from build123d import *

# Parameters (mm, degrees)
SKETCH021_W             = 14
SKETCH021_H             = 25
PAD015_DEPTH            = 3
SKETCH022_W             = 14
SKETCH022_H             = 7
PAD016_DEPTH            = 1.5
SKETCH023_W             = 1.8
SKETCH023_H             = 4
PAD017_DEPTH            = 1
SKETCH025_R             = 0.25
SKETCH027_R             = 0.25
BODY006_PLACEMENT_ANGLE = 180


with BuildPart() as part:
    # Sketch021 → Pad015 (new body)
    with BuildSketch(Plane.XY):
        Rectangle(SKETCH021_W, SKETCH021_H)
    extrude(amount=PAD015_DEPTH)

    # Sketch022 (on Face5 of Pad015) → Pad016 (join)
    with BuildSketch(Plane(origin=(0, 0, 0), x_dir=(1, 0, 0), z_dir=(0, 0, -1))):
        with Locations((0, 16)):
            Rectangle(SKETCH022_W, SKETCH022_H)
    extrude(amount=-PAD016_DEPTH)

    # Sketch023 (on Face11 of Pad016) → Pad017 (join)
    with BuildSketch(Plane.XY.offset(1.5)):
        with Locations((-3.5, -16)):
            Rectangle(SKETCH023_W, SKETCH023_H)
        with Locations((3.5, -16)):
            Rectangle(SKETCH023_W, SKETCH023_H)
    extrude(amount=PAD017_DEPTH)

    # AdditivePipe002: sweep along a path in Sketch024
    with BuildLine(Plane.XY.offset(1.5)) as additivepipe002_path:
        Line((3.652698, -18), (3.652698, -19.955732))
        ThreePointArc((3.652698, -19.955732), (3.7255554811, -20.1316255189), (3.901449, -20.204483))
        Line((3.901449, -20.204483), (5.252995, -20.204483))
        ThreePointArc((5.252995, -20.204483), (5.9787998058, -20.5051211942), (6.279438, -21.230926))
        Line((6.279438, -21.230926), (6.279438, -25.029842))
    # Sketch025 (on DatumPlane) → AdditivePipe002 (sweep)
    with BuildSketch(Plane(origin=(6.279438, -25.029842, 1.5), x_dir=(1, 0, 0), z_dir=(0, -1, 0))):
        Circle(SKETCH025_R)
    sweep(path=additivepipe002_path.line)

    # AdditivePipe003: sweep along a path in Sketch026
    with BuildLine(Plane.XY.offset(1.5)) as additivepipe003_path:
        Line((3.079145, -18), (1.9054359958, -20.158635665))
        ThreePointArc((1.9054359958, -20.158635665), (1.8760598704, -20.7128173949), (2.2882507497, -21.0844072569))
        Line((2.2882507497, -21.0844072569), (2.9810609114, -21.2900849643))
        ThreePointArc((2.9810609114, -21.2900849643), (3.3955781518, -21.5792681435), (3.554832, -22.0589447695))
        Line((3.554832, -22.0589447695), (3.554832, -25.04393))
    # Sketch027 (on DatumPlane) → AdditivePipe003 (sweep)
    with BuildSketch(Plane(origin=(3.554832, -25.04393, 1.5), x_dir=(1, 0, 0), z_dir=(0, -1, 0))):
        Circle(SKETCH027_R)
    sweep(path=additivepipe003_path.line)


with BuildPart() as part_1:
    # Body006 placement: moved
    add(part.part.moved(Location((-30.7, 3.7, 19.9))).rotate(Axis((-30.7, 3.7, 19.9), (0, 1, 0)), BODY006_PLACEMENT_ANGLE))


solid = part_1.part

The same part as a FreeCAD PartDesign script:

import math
import FreeCAD as App
import Part
import Sketcher


def add_polygon(sketch, points):
    """Adds a closed chain of lines whose ends are joined by coincident constraints."""
    first, n = sketch.GeometryCount, len(points)
    for a, b in zip(points, points[1:] + points[:1]):
        sketch.addGeometry(Part.LineSegment(App.Vector(*a, 0), App.Vector(*b, 0)), False)
    for i in range(n):
        sketch.addConstraint(Sketcher.Constraint("Coincident", first + i, 2, first + (i + 1) % n, 1))

doc = App.newDocument("Part")
params = doc.addObject("Spreadsheet::Sheet", "Params")
for row, (alias, value) in enumerate([
    ("sketch1_width", "14 mm"),
    ("sketch1_height", "25 mm"),
    ("pad1_length", "3 mm"),
    ("sketch2_width", "14 mm"),
    ("sketch2_height", "7 mm"),
    ("pad2_length", "1.5 mm"),
    ("sketch3_height", "4 mm"),
    ("sketch3_width", "1.8 mm"),
    ("pad3_length", "1 mm"),
    ("sketch4_diameter", "0.5 mm"),
    ("sketch6_diameter", "0.5 mm"),
], start=1):
    params.set(f"A{row}", alias)
    params.set(f"B{row}", "=" + value)
    params.setAlias(f"B{row}", alias)

body = doc.addObject("PartDesign::Body", "Body")

# Sketch on XY plane
sketch1 = body.newObject("Sketcher::SketchObject", "Sketch")
sketch1.AttachmentSupport = (doc.getObject("XY_Plane"), [""])
sketch1.MapMode = "FlatFace"
add_polygon(sketch1, [(-7, 12.5), (-7, -12.5), (7, -12.5), (7, 12.5)])  # lines 0-3
sketch1.addConstraint([
    Sketcher.Constraint("Vertical", 0),
    Sketcher.Constraint("Horizontal", 1),
    Sketcher.Constraint("Vertical", 2),
    Sketcher.Constraint("Horizontal", 3),
    Sketcher.Constraint("Symmetric", 0, 2, 2, 2, -1, 1),
    Sketcher.Constraint("DistanceX", 1, 1, 1, 2, 14.0),
    Sketcher.Constraint("DistanceY", 0, 2, 0, 1, 25.0),
])
sketch1.setExpression("Constraints[9]", "Params.sketch1_width")
sketch1.setExpression("Constraints[10]", "Params.sketch1_height")
pad1 = body.newObject("PartDesign::Pad", "Pad")
pad1.Profile = sketch1
pad1.setExpression("Length", "Params.pad1_length")

# Sketch on XY plane
sketch2 = body.newObject("Sketcher::SketchObject", "Sketch001")
sketch2.AttachmentSupport = (doc.getObject("XY_Plane"), [""])
sketch2.MapMode = "FlatFace"
add_polygon(sketch2, [(-7, -19.5), (-7, -12.5), (7, -12.5), (7, -19.5)])  # lines 0-3
sketch2.addConstraint([
    Sketcher.Constraint("Vertical", 0),
    Sketcher.Constraint("Horizontal", 1),
    Sketcher.Constraint("Vertical", 2),
    Sketcher.Constraint("Horizontal", 3),
    Sketcher.Constraint("DistanceX", 1, 1, 1, 2, 14.0),
    Sketcher.Constraint("DistanceY", 0, 1, 0, 2, 7.0),
    Sketcher.Constraint("DistanceX", 0, 2, -1, 1, 7.0),
    Sketcher.Constraint("DistanceY", 0, 2, -1, 1, 12.5),
])
sketch2.setExpression("Constraints[8]", "Params.sketch2_width")
sketch2.setExpression("Constraints[9]", "Params.sketch2_height")
pad2 = body.newObject("PartDesign::Pad", "Pad001")
pad2.Profile = sketch2
pad2.setExpression("Length", "Params.pad2_length")

# Sketch on XY plane
sketch3 = body.newObject("Sketcher::SketchObject", "Sketch002")
sketch3.AttachmentSupport = (doc.getObject("XY_Plane"), [""])
sketch3.MapMode = "FlatFace"
sketch3.AttachmentOffset = App.Placement(App.Vector(0, 0, 1.5), App.Rotation())
add_polygon(sketch3, [(-4.4, -14), (-4.4, -18), (-2.6, -18), (-2.6, -14)])  # lines 0-3
add_polygon(sketch3, [(2.6, -14), (2.6, -18), (4.4, -18), (4.4, -14)])  # lines 4-7
sketch3.addConstraint([
    Sketcher.Constraint("Vertical", 0),
    Sketcher.Constraint("Horizontal", 1),
    Sketcher.Constraint("Vertical", 2),
    Sketcher.Constraint("Horizontal", 3),
    Sketcher.Constraint("Vertical", 4),
    Sketcher.Constraint("Horizontal", 5),
    Sketcher.Constraint("Vertical", 6),
    Sketcher.Constraint("Horizontal", 7),
    Sketcher.Constraint("Symmetric", 1, 2, 4, 2, -2),
    Sketcher.Constraint("Symmetric", 3, 2, 6, 2, -2),
    Sketcher.Constraint("DistanceY", 0, 2, 0, 1, 4.0),
    Sketcher.Constraint("DistanceX", 1, 1, 1, 2, 1.8),
    Sketcher.Constraint("DistanceY", 0, 2, -1, 1, 18.0),
    Sketcher.Constraint("DistanceX", 0, 2, 4, 2, 7.0),
])
sketch3.setExpression("Constraints[18]", "Params.sketch3_height")
sketch3.setExpression("Constraints[19]", "Params.sketch3_width")
pad3 = body.newObject("PartDesign::Pad", "Pad002")
pad3.Profile = sketch3
pad3.setExpression("Length", "Params.pad3_length")

# Sketch on XZ plane
sketch4 = body.newObject("Sketcher::SketchObject", "Sketch003")
sketch4.AttachmentSupport = (doc.getObject("XZ_Plane"), [""])
sketch4.MapMode = "FlatFace"
sketch4.AttachmentOffset = App.Placement(App.Vector(0, 0, 25.029842), App.Rotation())
sketch4.addGeometry(Part.Circle(App.Vector(6.279438, 1.5, 0), App.Vector(0, 0, 1), 0.25), False)
sketch4.addConstraint([
    Sketcher.Constraint("Diameter", 0, 0.5),
    Sketcher.Constraint("DistanceY", -1, 1, 0, 3, 1.5),
    Sketcher.Constraint("DistanceX", -1, 1, 0, 3, 6.279438),
])
sketch4.setExpression("Constraints[0]", "Params.sketch4_diameter")

# Sketch on XY plane
sketch5 = body.newObject("Sketcher::SketchObject", "Sketch004")
sketch5.AttachmentSupport = (doc.getObject("XY_Plane"), [""])
sketch5.MapMode = "FlatFace"
sketch5.AttachmentOffset = App.Placement(App.Vector(0, 0, 1.5), App.Rotation())
sketch5.addGeometry([
    Part.LineSegment(App.Vector(3.652698, -18, 0), App.Vector(3.652698, -19.955732, 0)),  # 0
    Part.ArcOfCircle(Part.Circle(App.Vector(3.901449, -19.955732, 0), App.Vector(0, 0, 1), 0.248751), math.radians(180), math.radians(270)),  # 1
    Part.LineSegment(App.Vector(3.901449, -20.204483, 0), App.Vector(5.252995, -20.204483, 0)),  # 2
    Part.ArcOfCircle(Part.Circle(App.Vector(5.252995, -21.230926, 0), App.Vector(0, 0, 1), 1.026443), math.radians(0), math.radians(90)),  # 3
    Part.LineSegment(App.Vector(6.279438, -21.230926, 0), App.Vector(6.279438, -25.029842, 0)),  # 4
], False)
sketch5.addConstraint([
    Sketcher.Constraint("Tangent", 0, 2, 1, 1),
    Sketcher.Constraint("Tangent", 1, 2, 2, 1),
    Sketcher.Constraint("Tangent", 2, 2, 3, 2),
    Sketcher.Constraint("Tangent", 3, 1, 4, 1),
    Sketcher.Constraint("Vertical", 0),
    Sketcher.Constraint("Horizontal", 2),
    Sketcher.Constraint("Vertical", 4),
    Sketcher.Constraint("DistanceY", 0, 1, -1, 1, 18.0),
    Sketcher.Constraint("Radius", 1, 0.248751),
    Sketcher.Constraint("Radius", 3, 1.026443),
    Sketcher.Constraint("DistanceX", -1, 1, 0, 1, 3.652698),
    Sketcher.Constraint("DistanceX", 2, 1, 2, 2, 1.351546),
    Sketcher.Constraint("DistanceY", 0, 2, 0, 1, 1.955732),
    Sketcher.Constraint("DistanceY", 4, 2, 4, 1, 3.798916),
])
doc.recompute()

additivepipe = body.newObject("PartDesign::AdditivePipe", "AdditivePipe")
additivepipe.Profile = sketch4
additivepipe.Spine = (sketch5, ["Edge1", "Edge2", "Edge3", "Edge4", "Edge5"])

# Sketch on XZ plane
sketch6 = body.newObject("Sketcher::SketchObject", "Sketch005")
sketch6.AttachmentSupport = (doc.getObject("XZ_Plane"), [""])
sketch6.MapMode = "FlatFace"
sketch6.AttachmentOffset = App.Placement(App.Vector(0, 0, 25.04393), App.Rotation())
sketch6.addGeometry(Part.Circle(App.Vector(3.554832, 1.5, 0), App.Vector(0, 0, 1), 0.25), False)
sketch6.addConstraint([
    Sketcher.Constraint("Diameter", 0, 0.5),
    Sketcher.Constraint("DistanceY", -1, 1, 0, 3, 1.5),
    Sketcher.Constraint("DistanceX", -1, 1, 0, 3, 3.554832),
])
sketch6.setExpression("Constraints[0]", "Params.sketch6_diameter")

# Sketch on XY plane
sketch7 = body.newObject("Sketcher::SketchObject", "Sketch006")
sketch7.AttachmentSupport = (doc.getObject("XY_Plane"), [""])
sketch7.MapMode = "FlatFace"
sketch7.AttachmentOffset = App.Placement(App.Vector(0, 0, 1.5), App.Rotation())
sketch7.addGeometry([
    Part.LineSegment(App.Vector(3.079145, -18, 0), App.Vector(1.905436, -20.158636, 0)),  # 0
    Part.ArcOfCircle(Part.Circle(App.Vector(2.471685, -20.466521, 0), App.Vector(0, 0, 1), 0.64454), math.radians(151.46587), math.radians(253.465186)),  # 1
    Part.LineSegment(App.Vector(2.288251, -21.084407, 0), App.Vector(2.981061, -21.290085, 0)),  # 2
    Part.ArcOfCircle(Part.Circle(App.Vector(2.752806, -22.058945, 0), App.Vector(0, 0, 1), 0.802026), math.radians(0), math.radians(73.465186)),  # 3
    Part.LineSegment(App.Vector(3.554832, -22.058945, 0), App.Vector(3.554832, -25.04393, 0)),  # 4
], False)
sketch7.addConstraint([
    Sketcher.Constraint("Tangent", 0, 2, 1, 1),
    Sketcher.Constraint("Tangent", 1, 2, 2, 1),
    Sketcher.Constraint("Tangent", 2, 2, 3, 2),
    Sketcher.Constraint("Tangent", 3, 1, 4, 1),
    Sketcher.Constraint("Vertical", 4),
    Sketcher.Constraint("DistanceY", 0, 1, -1, 1, 18.0),
    Sketcher.Constraint("Radius", 1, 0.64454),
    Sketcher.Constraint("Radius", 3, 0.802026),
    Sketcher.Constraint("Distance", 0, 2.457092),
    Sketcher.Constraint("DistanceY", 4, 2, 4, 1, 2.984985),
    Sketcher.Constraint("DistanceY", 1, 3, -1, 1, 20.466521),
    Sketcher.Constraint("DistanceX", -1, 1, 1, 2, 2.288251),
    Sketcher.Constraint("DistanceX", -1, 1, 2, 2, 2.981061),
    Sketcher.Constraint("DistanceY", 4, 2, -1, 1, 25.04393),
])
doc.recompute()

additivepipe2 = body.newObject("PartDesign::AdditivePipe", "AdditivePipe001")
additivepipe2.Profile = sketch6
additivepipe2.Spine = (sketch7, ["Edge1", "Edge2", "Edge3", "Edge4", "Edge5"])
body2 = doc.addObject("PartDesign::Body", "Body001")
doc.recompute()

body.Placement = App.Placement(App.Vector(-30.7, 3.7, 19.9), App.Rotation(App.Vector(0, 1, 0), 180))
boolean = body2.newObject("PartDesign::Boolean", "Boolean")
boolean.Type = "Fuse"
boolean.addObjects([body])

doc.recompute()
